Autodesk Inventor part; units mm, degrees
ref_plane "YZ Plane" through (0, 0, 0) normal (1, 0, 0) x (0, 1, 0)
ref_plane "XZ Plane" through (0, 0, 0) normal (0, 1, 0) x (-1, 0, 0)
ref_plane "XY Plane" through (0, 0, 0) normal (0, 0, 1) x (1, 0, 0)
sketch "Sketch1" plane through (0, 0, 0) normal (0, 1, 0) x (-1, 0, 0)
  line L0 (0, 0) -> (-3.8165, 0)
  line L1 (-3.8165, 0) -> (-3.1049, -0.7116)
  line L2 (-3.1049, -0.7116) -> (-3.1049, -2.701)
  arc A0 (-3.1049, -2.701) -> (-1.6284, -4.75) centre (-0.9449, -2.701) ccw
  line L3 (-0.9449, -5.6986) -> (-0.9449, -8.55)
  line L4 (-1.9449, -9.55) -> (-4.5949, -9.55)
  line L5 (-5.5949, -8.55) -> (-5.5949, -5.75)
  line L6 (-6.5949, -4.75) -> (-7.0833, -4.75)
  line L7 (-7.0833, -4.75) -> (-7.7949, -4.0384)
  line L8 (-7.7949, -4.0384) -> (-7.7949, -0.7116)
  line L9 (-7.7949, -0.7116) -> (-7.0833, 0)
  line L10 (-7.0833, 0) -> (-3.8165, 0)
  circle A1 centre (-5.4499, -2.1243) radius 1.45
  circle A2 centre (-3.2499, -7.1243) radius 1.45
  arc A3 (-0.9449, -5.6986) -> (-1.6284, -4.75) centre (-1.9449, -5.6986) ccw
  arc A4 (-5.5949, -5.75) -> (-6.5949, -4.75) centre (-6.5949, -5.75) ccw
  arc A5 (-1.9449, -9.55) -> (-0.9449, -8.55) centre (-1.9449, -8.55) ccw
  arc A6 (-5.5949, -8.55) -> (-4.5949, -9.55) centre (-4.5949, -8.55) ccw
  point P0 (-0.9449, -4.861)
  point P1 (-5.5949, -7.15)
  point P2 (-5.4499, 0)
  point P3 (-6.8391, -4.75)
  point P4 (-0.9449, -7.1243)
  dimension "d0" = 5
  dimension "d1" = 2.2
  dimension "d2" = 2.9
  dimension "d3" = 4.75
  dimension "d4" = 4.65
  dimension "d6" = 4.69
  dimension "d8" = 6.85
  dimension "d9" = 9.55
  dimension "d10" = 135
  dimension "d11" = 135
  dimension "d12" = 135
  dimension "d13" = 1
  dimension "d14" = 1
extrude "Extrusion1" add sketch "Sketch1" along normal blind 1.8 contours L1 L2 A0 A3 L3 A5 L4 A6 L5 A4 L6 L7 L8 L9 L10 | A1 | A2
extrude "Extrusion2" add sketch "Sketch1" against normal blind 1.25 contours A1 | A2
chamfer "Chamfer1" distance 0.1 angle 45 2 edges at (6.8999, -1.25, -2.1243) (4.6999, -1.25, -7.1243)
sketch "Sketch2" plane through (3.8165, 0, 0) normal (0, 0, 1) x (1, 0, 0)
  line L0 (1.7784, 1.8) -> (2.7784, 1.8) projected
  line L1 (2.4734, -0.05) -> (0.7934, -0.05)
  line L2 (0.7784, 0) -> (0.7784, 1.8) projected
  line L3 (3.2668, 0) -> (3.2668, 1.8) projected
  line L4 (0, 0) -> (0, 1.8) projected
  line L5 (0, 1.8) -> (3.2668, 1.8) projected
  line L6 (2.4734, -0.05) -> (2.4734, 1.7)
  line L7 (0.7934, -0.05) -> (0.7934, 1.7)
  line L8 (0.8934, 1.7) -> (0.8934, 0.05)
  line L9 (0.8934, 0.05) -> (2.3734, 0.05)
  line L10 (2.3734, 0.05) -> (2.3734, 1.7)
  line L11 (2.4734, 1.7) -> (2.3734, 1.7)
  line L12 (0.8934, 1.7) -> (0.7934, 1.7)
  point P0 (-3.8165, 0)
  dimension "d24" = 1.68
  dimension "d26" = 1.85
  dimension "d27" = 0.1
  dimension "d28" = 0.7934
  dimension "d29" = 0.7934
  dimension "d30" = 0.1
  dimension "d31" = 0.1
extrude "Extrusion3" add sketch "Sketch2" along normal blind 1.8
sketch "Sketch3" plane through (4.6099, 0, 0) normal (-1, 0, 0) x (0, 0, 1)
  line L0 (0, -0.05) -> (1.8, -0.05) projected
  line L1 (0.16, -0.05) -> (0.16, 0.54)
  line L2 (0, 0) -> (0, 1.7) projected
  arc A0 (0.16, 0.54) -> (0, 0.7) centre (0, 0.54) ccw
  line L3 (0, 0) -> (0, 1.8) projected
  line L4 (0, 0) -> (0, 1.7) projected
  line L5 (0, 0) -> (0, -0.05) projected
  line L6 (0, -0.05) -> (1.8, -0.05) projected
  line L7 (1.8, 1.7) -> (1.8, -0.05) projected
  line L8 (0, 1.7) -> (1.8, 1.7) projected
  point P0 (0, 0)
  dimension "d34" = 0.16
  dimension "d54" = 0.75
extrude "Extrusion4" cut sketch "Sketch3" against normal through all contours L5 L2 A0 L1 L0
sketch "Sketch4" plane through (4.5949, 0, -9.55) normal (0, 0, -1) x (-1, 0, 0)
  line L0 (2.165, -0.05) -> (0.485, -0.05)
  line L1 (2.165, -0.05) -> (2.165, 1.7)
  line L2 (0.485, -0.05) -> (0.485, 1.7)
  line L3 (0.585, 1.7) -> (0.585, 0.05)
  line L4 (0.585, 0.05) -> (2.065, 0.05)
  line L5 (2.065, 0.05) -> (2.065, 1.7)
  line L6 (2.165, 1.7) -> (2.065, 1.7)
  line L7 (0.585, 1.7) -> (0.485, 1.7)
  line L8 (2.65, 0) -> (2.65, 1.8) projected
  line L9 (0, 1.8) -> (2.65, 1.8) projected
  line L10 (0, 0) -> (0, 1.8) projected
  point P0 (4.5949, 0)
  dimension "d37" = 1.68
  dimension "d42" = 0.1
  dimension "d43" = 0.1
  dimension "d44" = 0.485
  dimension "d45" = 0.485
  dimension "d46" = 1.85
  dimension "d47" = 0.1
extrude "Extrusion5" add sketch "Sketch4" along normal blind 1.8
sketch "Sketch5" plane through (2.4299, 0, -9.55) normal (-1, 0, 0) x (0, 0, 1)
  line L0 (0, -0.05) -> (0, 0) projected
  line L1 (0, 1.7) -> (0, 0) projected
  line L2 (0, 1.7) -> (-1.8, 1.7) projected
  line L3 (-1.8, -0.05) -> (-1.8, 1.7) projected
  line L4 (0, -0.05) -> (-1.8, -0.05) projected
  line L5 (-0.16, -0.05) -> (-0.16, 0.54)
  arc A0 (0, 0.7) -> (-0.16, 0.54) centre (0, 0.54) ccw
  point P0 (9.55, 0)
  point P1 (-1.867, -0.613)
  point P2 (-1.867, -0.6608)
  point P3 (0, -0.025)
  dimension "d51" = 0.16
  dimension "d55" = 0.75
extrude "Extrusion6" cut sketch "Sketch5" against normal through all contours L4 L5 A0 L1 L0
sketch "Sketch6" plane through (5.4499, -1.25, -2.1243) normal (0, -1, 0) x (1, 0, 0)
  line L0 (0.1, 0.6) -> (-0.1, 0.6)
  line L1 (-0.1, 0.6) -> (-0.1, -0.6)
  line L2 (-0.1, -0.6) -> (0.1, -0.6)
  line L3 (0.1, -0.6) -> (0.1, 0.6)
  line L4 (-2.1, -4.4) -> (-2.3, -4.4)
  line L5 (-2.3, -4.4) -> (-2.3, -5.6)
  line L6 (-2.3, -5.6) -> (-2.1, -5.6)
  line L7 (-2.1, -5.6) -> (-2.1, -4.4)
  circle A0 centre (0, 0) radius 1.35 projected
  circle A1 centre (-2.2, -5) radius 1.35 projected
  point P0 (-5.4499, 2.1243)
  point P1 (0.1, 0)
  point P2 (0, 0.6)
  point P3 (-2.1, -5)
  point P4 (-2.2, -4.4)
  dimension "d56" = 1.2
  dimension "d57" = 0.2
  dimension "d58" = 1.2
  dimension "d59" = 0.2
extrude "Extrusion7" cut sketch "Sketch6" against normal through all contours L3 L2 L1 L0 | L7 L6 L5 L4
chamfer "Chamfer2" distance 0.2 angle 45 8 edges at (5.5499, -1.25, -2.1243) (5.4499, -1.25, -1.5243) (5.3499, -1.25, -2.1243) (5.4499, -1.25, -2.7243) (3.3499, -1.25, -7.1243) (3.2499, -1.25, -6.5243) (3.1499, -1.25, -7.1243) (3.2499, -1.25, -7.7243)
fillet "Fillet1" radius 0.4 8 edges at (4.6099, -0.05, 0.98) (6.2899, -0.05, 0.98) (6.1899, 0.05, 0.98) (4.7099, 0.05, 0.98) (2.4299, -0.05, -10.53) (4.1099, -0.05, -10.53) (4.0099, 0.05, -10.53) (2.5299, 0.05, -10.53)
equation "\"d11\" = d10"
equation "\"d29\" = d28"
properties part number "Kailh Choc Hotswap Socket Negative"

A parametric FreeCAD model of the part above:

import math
import FreeCAD as App
import Part
import Sketcher

V = App.Vector
Q = App.Units.Quantity


def edges_at(feature, points):
    """Names of the edges that pass closest to the given points."""
    edges = feature.Shape.Edges
    near = lambda p: min(range(len(edges)), key=lambda i: edges[i].distToShape(Part.Vertex(*p))[0])
    return sorted({f"Edge{near(p) + 1}" for p in points})

doc = App.newDocument("Part")
body = doc.addObject("PartDesign::Body", "Body")

sketch1 = doc.addObject("Sketcher::SketchObject", "Sketch")
body.addObject(sketch1)
sketch1.AttachmentSupport = (doc.XZ_Plane, [""])
sketch1.MapMode = "FlatFace"
sketch1.addGeometry(Part.LineSegment(V(3.1049, -0.7116, 0), V(3.8165, 0, 0)), False)
sketch1.addGeometry(Part.LineSegment(V(3.8165, 0, 0), V(7.0833, 0, 0)), False)
sketch1.addGeometry(Part.LineSegment(V(7.0833, 0, 0), V(7.7949, -0.7116, 0)), False)
sketch1.addGeometry(Part.LineSegment(V(7.7949, -0.7116, 0), V(7.7949, -4.0384, 0)), False)
sketch1.addGeometry(Part.LineSegment(V(7.7949, -4.0384, 0), V(7.0833, -4.75, 0)), False)
sketch1.addGeometry(Part.LineSegment(V(7.0833, -4.75, 0), V(6.5949, -4.75, 0)), False)
sketch1.addGeometry(Part.ArcOfCircle(Part.Circle(V(6.5949, -5.75, 0), V(0, 0, 1), 1), math.radians(90), math.radians(180)), False)
sketch1.addGeometry(Part.LineSegment(V(5.5949, -5.75, 0), V(5.5949, -8.55, 0)), False)
sketch1.addGeometry(Part.ArcOfCircle(Part.Circle(V(4.5949, -8.55, 0), V(0, 0, 1), 1), math.radians(-90), math.radians(0)), False)
sketch1.addGeometry(Part.LineSegment(V(4.5949, -9.55, 0), V(1.9449, -9.55, 0)), False)
sketch1.addGeometry(Part.ArcOfCircle(Part.Circle(V(1.9449, -8.55, 0), V(0, 0, 1), 1), math.radians(180), math.radians(270)), False)
sketch1.addGeometry(Part.LineSegment(V(0.9449, -8.55, 0), V(0.9449, -5.6986, 0)), False)
sketch1.addGeometry(Part.ArcOfCircle(Part.Circle(V(1.9449, -5.6986, 0), V(0, 0, 1), 1), math.radians(108.451255), math.radians(180)), False)
sketch1.addGeometry(Part.ArcOfCircle(Part.Circle(V(0.9449, -2.701, 0), V(0, 0, 1), 2.16), math.radians(-71.552469), math.radians(0)), False)
sketch1.addGeometry(Part.LineSegment(V(3.1049, -2.701, 0), V(3.1049, -0.7116, 0)), False)
sketch1.addConstraint(Sketcher.Constraint("Coincident", 0, 2, 1, 1))
sketch1.addConstraint(Sketcher.Constraint("Coincident", 1, 2, 2, 1))
sketch1.addConstraint(Sketcher.Constraint("Coincident", 2, 2, 3, 1))
sketch1.addConstraint(Sketcher.Constraint("Coincident", 3, 2, 4, 1))
sketch1.addConstraint(Sketcher.Constraint("Coincident", 4, 2, 5, 1))
sketch1.addConstraint(Sketcher.Constraint("Tangent", 5, 2, 6, 1))
sketch1.addConstraint(Sketcher.Constraint("Tangent", 6, 2, 7, 1))
sketch1.addConstraint(Sketcher.Constraint("Tangent", 7, 2, 8, 2))
sketch1.addConstraint(Sketcher.Constraint("Tangent", 8, 1, 9, 1))
sketch1.addConstraint(Sketcher.Constraint("Tangent", 9, 2, 10, 2))
sketch1.addConstraint(Sketcher.Constraint("Tangent", 10, 1, 11, 1))
sketch1.addConstraint(Sketcher.Constraint("Tangent", 11, 2, 12, 2))
sketch1.addConstraint(Sketcher.Constraint("Tangent", 12, 1, 13, 1))
sketch1.addConstraint(Sketcher.Constraint("Tangent", 13, 2, 14, 1))
sketch1.addConstraint(Sketcher.Constraint("Coincident", 14, 2, 0, 1))
sketch1.addConstraint(Sketcher.Constraint("Horizontal", 1))
sketch1.addConstraint(Sketcher.Constraint("Vertical", 3))
sketch1.addConstraint(Sketcher.Constraint("Horizontal", 5))
sketch1.addConstraint(Sketcher.Constraint("Vertical", 7))
sketch1.addConstraint(Sketcher.Constraint("Horizontal", 9))
sketch1.addConstraint(Sketcher.Constraint("Vertical", 11))
sketch1.addConstraint(Sketcher.Constraint("Vertical", 14))
sketch1.addConstraint(Sketcher.Constraint("Equal", 6, 8))
sketch1.addConstraint(Sketcher.Constraint("Equal", 8, 10))
sketch1.addConstraint(Sketcher.Constraint("Equal", 10, 12))
sketch1.addConstraint(Sketcher.Constraint("PointOnObject", 0, 2, -1))
sketch1.addConstraint(Sketcher.Constraint("Perpendicular", 0, 2))
sketch1.addConstraint(Sketcher.Constraint("Perpendicular", 2, 4))
sketch1.addConstraint(Sketcher.Constraint("Horizontal", 5, 2, 12, 1))
sketch1.addConstraint(Sketcher.Constraint("Horizontal", 2, 2, 14, 2))
sketch1.addConstraint(Sketcher.Constraint("Vertical", 1, 2, 4, 2))
sketch1.addConstraint(Sketcher.Constraint("Vertical", 13, 3, 10, 1))
sketch1.addConstraint(Sketcher.Constraint("Equal", 0, 2))
sketch1.addConstraint(Sketcher.Constraint("Radius", 6, Q("1 mm")))
sketch1.addConstraint(Sketcher.Constraint("DistanceX", 6, 2, 3, 2, Q("2.2 mm")))
sketch1.addConstraint(Sketcher.Constraint("DistanceY", 4, 2, -1, 1, Q("4.75 mm")))
sketch1.addConstraint(Sketcher.Constraint("DistanceY", 8, 1, -1, 1, Q("9.55 mm")))
sketch1.addConstraint(Sketcher.Constraint("Radius", 13, Q("2.16 mm")))
sketch1.addConstraint(Sketcher.Constraint("DistanceX", 10, 3, 6, 3, Q("4.65 mm")))
sketch1.addConstraint(Sketcher.Constraint("DistanceX", 1, 1, 1, 2, Q("3.2668 mm")))
sketch1.addConstraint(Sketcher.Constraint("DistanceX", -1, 1, 6, 3, Q("6.595 mm")))
pad1 = doc.addObject("PartDesign::Pad", "Pad")
body.addObject(pad1)
pad1.Profile = sketch1
pad1.Length = 1.8
pad1.Reversed = True

sketch2 = doc.addObject("Sketcher::SketchObject", "Sketch001")
body.addObject(sketch2)
sketch2.AttachmentSupport = (doc.XZ_Plane, [""])
sketch2.MapMode = "FlatFace"
sketch2.addGeometry(Part.Circle(V(5.4499, -2.1243, 0), V(0, 0, 1), 1.45), False)
sketch2.addGeometry(Part.Circle(V(3.2499, -7.1243, 0), V(0, 0, 1), 1.45), False)
sketch2.addConstraint(Sketcher.Constraint("Equal", 0, 1))
sketch2.addConstraint(Sketcher.Constraint("Diameter", 0, Q("2.9 mm")))
sketch2.addConstraint(Sketcher.Constraint("DistanceY", 1, 3, 0, 3, Q("5 mm")))
sketch2.addConstraint(Sketcher.Constraint("DistanceX", 1, 3, 0, 3, Q("2.2 mm")))
sketch2.addConstraint(Sketcher.Constraint("DistanceX", -1, 1, 0, 3, Q("5.45 mm")))
sketch2.addConstraint(Sketcher.Constraint("DistanceY", 0, 3, -1, 1, Q("2.1243 mm")))
pad2 = doc.addObject("PartDesign::Pad", "Pad001")
body.addObject(pad2)
pad2.Profile = sketch2
pad2.Length = 1.25
doc.recompute()

chamfer = doc.addObject("PartDesign::Chamfer", "Chamfer")
body.addObject(chamfer)
chamfer.Base = (pad2, edges_at(pad2, [(6.9, -1.25, -2.124), (4.7, -1.25, -7.124)]))
chamfer.Size = 0.1

sketch3 = doc.addObject("Sketcher::SketchObject", "Sketch002")
body.addObject(sketch3)
sketch3.AttachmentSupport = (doc.XY_Plane, [""])
sketch3.MapMode = "FlatFace"
sketch3.addGeometry(Part.LineSegment(V(4.6099, -0.05, 0), V(6.2899, -0.05, 0)), False)
sketch3.addGeometry(Part.LineSegment(V(6.2899, -0.05, 0), V(6.2899, 1.7, 0)), False)
sketch3.addGeometry(Part.LineSegment(V(6.2899, 1.7, 0), V(6.1899, 1.7, 0)), False)
sketch3.addGeometry(Part.LineSegment(V(6.1899, 1.7, 0), V(6.1899, 0.05, 0)), False)
sketch3.addGeometry(Part.LineSegment(V(6.1899, 0.05, 0), V(4.7099, 0.05, 0)), False)
sketch3.addGeometry(Part.LineSegment(V(4.7099, 0.05, 0), V(4.7099, 1.7, 0)), False)
sketch3.addGeometry(Part.LineSegment(V(4.7099, 1.7, 0), V(4.6099, 1.7, 0)), False)
sketch3.addGeometry(Part.LineSegment(V(4.6099, 1.7, 0), V(4.6099, -0.05, 0)), False)
sketch3.addConstraint(Sketcher.Constraint("Coincident", 0, 2, 1, 1))
sketch3.addConstraint(Sketcher.Constraint("Coincident", 1, 2, 2, 1))
sketch3.addConstraint(Sketcher.Constraint("Coincident", 2, 2, 3, 1))
sketch3.addConstraint(Sketcher.Constraint("Coincident", 3, 2, 4, 1))
sketch3.addConstraint(Sketcher.Constraint("Coincident", 4, 2, 5, 1))
sketch3.addConstraint(Sketcher.Constraint("Coincident", 5, 2, 6, 1))
sketch3.addConstraint(Sketcher.Constraint("Coincident", 6, 2, 7, 1))
sketch3.addConstraint(Sketcher.Constraint("Coincident", 7, 2, 0, 1))
sketch3.addConstraint(Sketcher.Constraint("Horizontal", 0))
sketch3.addConstraint(Sketcher.Constraint("Vertical", 1))
sketch3.addConstraint(Sketcher.Constraint("Horizontal", 2))
sketch3.addConstraint(Sketcher.Constraint("Vertical", 3))
sketch3.addConstraint(Sketcher.Constraint("Horizontal", 4))
sketch3.addConstraint(Sketcher.Constraint("Vertical", 5))
sketch3.addConstraint(Sketcher.Constraint("Horizontal", 6))
sketch3.addConstraint(Sketcher.Constraint("Vertical", 7))
sketch3.addConstraint(Sketcher.Constraint("Horizontal", 2, 2, 5, 2))
sketch3.addConstraint(Sketcher.Constraint("Equal", 2, 6))
sketch3.addConstraint(Sketcher.Constraint("DistanceX", 2, 2, 2, 1, Q("0.1 mm")))
sketch3.addConstraint(Sketcher.Constraint("DistanceX", 0, 1, 0, 2, Q("1.68 mm")))
sketch3.addConstraint(Sketcher.Constraint("DistanceY", 0, 2, 3, 2, Q("0.1 mm")))
sketch3.addConstraint(Sketcher.Constraint("DistanceY", 1, 1, 1, 2, Q("1.75 mm")))
sketch3.addConstraint(Sketcher.Constraint("DistanceY", -1, 1, 1, 2, Q("1.7 mm")))
sketch3.addConstraint(Sketcher.Constraint("DistanceX", -1, 1, 0, 2, Q("6.29 mm")))
pad3 = doc.addObject("PartDesign::Pad", "Pad002")
body.addObject(pad3)
pad3.Profile = sketch3
pad3.Length = 1.8

sketch4 = doc.addObject("Sketcher::SketchObject", "Sketch003")
body.addObject(sketch4)
sketch4.AttachmentSupport = (doc.YZ_Plane, [""])
sketch4.MapMode = "FlatFace"
sketch4.AttachmentOffset = App.Placement(V(0, 0, 4.6099), App.Rotation())
sketch4.addGeometry(Part.LineSegment(V(0.7, 0, 0), V(-0.05, 0, 0)), False)
sketch4.addGeometry(Part.LineSegment(V(-0.05, 0, 0), V(-0.05, 0.16, 0)), False)
sketch4.addGeometry(Part.LineSegment(V(-0.05, 0.16, 0), V(0.54, 0.16, 0)), False)
sketch4.addGeometry(Part.ArcOfCircle(Part.Circle(V(0.54, 0, 0), V(0, 0, 1), 0.16), math.radians(0), math.radians(90)), False)
sketch4.addConstraint(Sketcher.Constraint("Coincident", 0, 2, 1, 1))
sketch4.addConstraint(Sketcher.Constraint("Coincident", 1, 2, 2, 1))
sketch4.addConstraint(Sketcher.Constraint("Tangent", 2, 2, 3, 2))
sketch4.addConstraint(Sketcher.Constraint("Coincident", 3, 1, 0, 1))
sketch4.addConstraint(Sketcher.Constraint("Horizontal", 0))
sketch4.addConstraint(Sketcher.Constraint("Vertical", 1))
sketch4.addConstraint(Sketcher.Constraint("Horizontal", 2))
sketch4.addConstraint(Sketcher.Constraint("PointOnObject", 3, 3, -1))
sketch4.addConstraint(Sketcher.Constraint("PointOnObject", 0, 2, -1))
sketch4.addConstraint(Sketcher.Constraint("Radius", 3, Q("0.16 mm")))
sketch4.addConstraint(Sketcher.Constraint("DistanceX", 0, 2, 0, 1, Q("0.75 mm")))
sketch4.addConstraint(Sketcher.Constraint("DistanceX", -1, 1, 3, 1, Q("0.7 mm")))
pocket1 = doc.addObject("PartDesign::Pocket", "Pocket")
body.addObject(pocket1)
pocket1.Profile = sketch4
pocket1.Type = "ThroughAll"
pocket1.Reversed = True

sketch5 = doc.addObject("Sketcher::SketchObject", "Sketch004")
body.addObject(sketch5)
sketch5.AttachmentSupport = (doc.XY_Plane, [""])
sketch5.MapMode = "FlatFace"
sketch5.AttachmentOffset = App.Placement(V(0, 0, -9.55), App.Rotation())
sketch5.addGeometry(Part.LineSegment(V(4.1099, -0.05, 0), V(2.4299, -0.05, 0)), False)
sketch5.addGeometry(Part.LineSegment(V(2.4299, -0.05, 0), V(2.4299, 1.7, 0)), False)
sketch5.addGeometry(Part.LineSegment(V(2.4299, 1.7, 0), V(2.5299, 1.7, 0)), False)
sketch5.addGeometry(Part.LineSegment(V(2.5299, 1.7, 0), V(2.5299, 0.05, 0)), False)
sketch5.addGeometry(Part.LineSegment(V(2.5299, 0.05, 0), V(4.0099, 0.05, 0)), False)
sketch5.addGeometry(Part.LineSegment(V(4.0099, 0.05, 0), V(4.0099, 1.7, 0)), False)
sketch5.addGeometry(Part.LineSegment(V(4.0099, 1.7, 0), V(4.1099, 1.7, 0)), False)
sketch5.addGeometry(Part.LineSegment(V(4.1099, 1.7, 0), V(4.1099, -0.05, 0)), False)
sketch5.addConstraint(Sketcher.Constraint("Coincident", 0, 2, 1, 1))
sketch5.addConstraint(Sketcher.Constraint("Coincident", 1, 2, 2, 1))
sketch5.addConstraint(Sketcher.Constraint("Coincident", 2, 2, 3, 1))
sketch5.addConstraint(Sketcher.Constraint("Coincident", 3, 2, 4, 1))
sketch5.addConstraint(Sketcher.Constraint("Coincident", 4, 2, 5, 1))
sketch5.addConstraint(Sketcher.Constraint("Coincident", 5, 2, 6, 1))
sketch5.addConstraint(Sketcher.Constraint("Coincident", 6, 2, 7, 1))
sketch5.addConstraint(Sketcher.Constraint("Coincident", 7, 2, 0, 1))
sketch5.addConstraint(Sketcher.Constraint("Horizontal", 0))
sketch5.addConstraint(Sketcher.Constraint("Vertical", 1))
sketch5.addConstraint(Sketcher.Constraint("Horizontal", 2))
sketch5.addConstraint(Sketcher.Constraint("Vertical", 3))
sketch5.addConstraint(Sketcher.Constraint("Horizontal", 4))
sketch5.addConstraint(Sketcher.Constraint("Vertical", 5))
sketch5.addConstraint(Sketcher.Constraint("Horizontal", 6))
sketch5.addConstraint(Sketcher.Constraint("Vertical", 7))
sketch5.addConstraint(Sketcher.Constraint("Horizontal", 2, 2, 5, 2))
sketch5.addConstraint(Sketcher.Constraint("Equal", 2, 6))
sketch5.addConstraint(Sketcher.Constraint("DistanceX", 2, 1, 2, 2, Q("0.1 mm")))
sketch5.addConstraint(Sketcher.Constraint("DistanceX", 0, 2, 0, 1, Q("1.68 mm")))
sketch5.addConstraint(Sketcher.Constraint("DistanceY", 0, 2, 3, 2, Q("0.1 mm")))
sketch5.addConstraint(Sketcher.Constraint("DistanceY", 1, 1, 1, 2, Q("1.75 mm")))
sketch5.addConstraint(Sketcher.Constraint("DistanceY", -1, 1, 1, 2, Q("1.7 mm")))
sketch5.addConstraint(Sketcher.Constraint("DistanceX", -1, 1, 0, 2, Q("2.43 mm")))
pad4 = doc.addObject("PartDesign::Pad", "Pad003")
body.addObject(pad4)
pad4.Profile = sketch5
pad4.Length = 1.8
pad4.Reversed = True

sketch6 = doc.addObject("Sketcher::SketchObject", "Sketch005")
body.addObject(sketch6)
sketch6.AttachmentSupport = (doc.YZ_Plane, [""])
sketch6.MapMode = "FlatFace"
sketch6.AttachmentOffset = App.Placement(V(0, 0, 2.4299), App.Rotation())
sketch6.addGeometry(Part.LineSegment(V(-0.05, -9.71, 0), V(-0.05, -9.55, 0)), False)
sketch6.addGeometry(Part.LineSegment(V(-0.05, -9.55, 0), V(0.7, -9.55, 0)), False)
sketch6.addGeometry(Part.ArcOfCircle(Part.Circle(V(0.54, -9.55, 0), V(0, 0, 1), 0.16), math.radians(-90), math.radians(0)), False)
sketch6.addGeometry(Part.LineSegment(V(0.54, -9.71, 0), V(-0.05, -9.71, 0)), False)
sketch6.addConstraint(Sketcher.Constraint("Coincident", 0, 2, 1, 1))
sketch6.addConstraint(Sketcher.Constraint("Coincident", 1, 2, 2, 2))
sketch6.addConstraint(Sketcher.Constraint("Tangent", 2, 1, 3, 1))
sketch6.addConstraint(Sketcher.Constraint("Coincident", 3, 2, 0, 1))
sketch6.addConstraint(Sketcher.Constraint("Vertical", 0))
sketch6.addConstraint(Sketcher.Constraint("Horizontal", 1))
sketch6.addConstraint(Sketcher.Constraint("Horizontal", 3))
sketch6.addConstraint(Sketcher.Constraint("Horizontal", 2, 3, 0, 2))
sketch6.addConstraint(Sketcher.Constraint("Radius", 2, Q("0.16 mm")))
sketch6.addConstraint(Sketcher.Constraint("DistanceX", 1, 1, 1, 2, Q("0.75 mm")))
sketch6.addConstraint(Sketcher.Constraint("DistanceX", -1, 1, 1, 2, Q("0.7 mm")))
sketch6.addConstraint(Sketcher.Constraint("DistanceY", 2, 3, -1, 1, Q("9.55 mm")))
pocket2 = doc.addObject("PartDesign::Pocket", "Pocket001")
body.addObject(pocket2)
pocket2.Profile = sketch6
pocket2.Type = "ThroughAll"
pocket2.Reversed = True

sketch7 = doc.addObject("Sketcher::SketchObject", "Sketch006")
body.addObject(sketch7)
sketch7.AttachmentSupport = (doc.XZ_Plane, [""])
sketch7.MapMode = "FlatFace"
sketch7.AttachmentOffset = App.Placement(V(0, 0, 1.25), App.Rotation())
sketch7.addGeometry(Part.LineSegment(V(5.5499, -2.7243, 0), V(5.5499, -1.5243, 0)), False)
sketch7.addGeometry(Part.LineSegment(V(5.5499, -1.5243, 0), V(5.3499, -1.5243, 0)), False)
sketch7.addGeometry(Part.LineSegment(V(5.3499, -1.5243, 0), V(5.3499, -2.7243, 0)), False)
sketch7.addGeometry(Part.LineSegment(V(5.3499, -2.7243, 0), V(5.5499, -2.7243, 0)), False)
sketch7.addGeometry(Part.LineSegment(V(3.3499, -7.7243, 0), V(3.3499, -6.5243, 0)), False)
sketch7.addGeometry(Part.LineSegment(V(3.3499, -6.5243, 0), V(3.1499, -6.5243, 0)), False)
sketch7.addGeometry(Part.LineSegment(V(3.1499, -6.5243, 0), V(3.1499, -7.7243, 0)), False)
sketch7.addGeometry(Part.LineSegment(V(3.1499, -7.7243, 0), V(3.3499, -7.7243, 0)), False)
sketch7.addConstraint(Sketcher.Constraint("Coincident", 0, 2, 1, 1))
sketch7.addConstraint(Sketcher.Constraint("Coincident", 1, 2, 2, 1))
sketch7.addConstraint(Sketcher.Constraint("Coincident", 2, 2, 3, 1))
sketch7.addConstraint(Sketcher.Constraint("Coincident", 3, 2, 0, 1))
sketch7.addConstraint(Sketcher.Constraint("Coincident", 4, 2, 5, 1))
sketch7.addConstraint(Sketcher.Constraint("Coincident", 5, 2, 6, 1))
sketch7.addConstraint(Sketcher.Constraint("Coincident", 6, 2, 7, 1))
sketch7.addConstraint(Sketcher.Constraint("Coincident", 7, 2, 4, 1))
sketch7.addConstraint(Sketcher.Constraint("Vertical", 0))
sketch7.addConstraint(Sketcher.Constraint("Horizontal", 1))
sketch7.addConstraint(Sketcher.Constraint("Vertical", 2))
sketch7.addConstraint(Sketcher.Constraint("Horizontal", 3))
sketch7.addConstraint(Sketcher.Constraint("Vertical", 4))
sketch7.addConstraint(Sketcher.Constraint("Horizontal", 5))
sketch7.addConstraint(Sketcher.Constraint("Vertical", 6))
sketch7.addConstraint(Sketcher.Constraint("Horizontal", 7))
sketch7.addConstraint(Sketcher.Constraint("Equal", 3, 5))
sketch7.addConstraint(Sketcher.Constraint("Equal", 2, 4))
sketch7.addConstraint(Sketcher.Constraint("DistanceX", 1, 2, 1, 1, Q("0.2 mm")))
sketch7.addConstraint(Sketcher.Constraint("DistanceY", 0, 1, 0, 2, Q("1.2 mm")))
sketch7.addConstraint(Sketcher.Constraint("DistanceX", 4, 2, 2, 2, Q("2 mm")))
sketch7.addConstraint(Sketcher.Constraint("DistanceY", 4, 2, 1, 2, Q("5 mm")))
sketch7.addConstraint(Sketcher.Constraint("DistanceX", -1, 1, 0, 2, Q("5.55 mm")))
sketch7.addConstraint(Sketcher.Constraint("DistanceY", 0, 2, -1, 1, Q("1.5243 mm")))
pocket3 = doc.addObject("PartDesign::Pocket", "Pocket002")
body.addObject(pocket3)
pocket3.Profile = sketch7
pocket3.Type = "ThroughAll"
doc.recompute()

chamfer2 = doc.addObject("PartDesign::Chamfer", "Chamfer001")
body.addObject(chamfer2)
chamfer2.Base = (pocket3, edges_at(pocket3, [
    (5.55, -1.25, -2.124),
    (5.45, -1.25, -1.524),
    (5.35, -1.25, -2.124),
    (5.45, -1.25, -2.724),
    (3.35, -1.25, -7.124),
    (3.25, -1.25, -6.524),
    (3.15, -1.25, -7.124),
    (3.25, -1.25, -7.724),
]))
chamfer2.Size = 0.2
doc.recompute()

fillet = doc.addObject("PartDesign::Fillet", "Fillet")
body.addObject(fillet)
fillet.Base = (chamfer2, edges_at(chamfer2, [
    (4.61, -0.05, 0.98),
    (6.29, -0.05, 0.98),
    (6.19, 0.05, 0.98),
    (4.71, 0.05, 0.98),
    (2.43, -0.05, -10.53),
    (4.11, -0.05, -10.53),
    (4.01, 0.05, -10.53),
    (2.53, 0.05, -10.53),
]))
fillet.Radius = 0.4

doc.recompute()
